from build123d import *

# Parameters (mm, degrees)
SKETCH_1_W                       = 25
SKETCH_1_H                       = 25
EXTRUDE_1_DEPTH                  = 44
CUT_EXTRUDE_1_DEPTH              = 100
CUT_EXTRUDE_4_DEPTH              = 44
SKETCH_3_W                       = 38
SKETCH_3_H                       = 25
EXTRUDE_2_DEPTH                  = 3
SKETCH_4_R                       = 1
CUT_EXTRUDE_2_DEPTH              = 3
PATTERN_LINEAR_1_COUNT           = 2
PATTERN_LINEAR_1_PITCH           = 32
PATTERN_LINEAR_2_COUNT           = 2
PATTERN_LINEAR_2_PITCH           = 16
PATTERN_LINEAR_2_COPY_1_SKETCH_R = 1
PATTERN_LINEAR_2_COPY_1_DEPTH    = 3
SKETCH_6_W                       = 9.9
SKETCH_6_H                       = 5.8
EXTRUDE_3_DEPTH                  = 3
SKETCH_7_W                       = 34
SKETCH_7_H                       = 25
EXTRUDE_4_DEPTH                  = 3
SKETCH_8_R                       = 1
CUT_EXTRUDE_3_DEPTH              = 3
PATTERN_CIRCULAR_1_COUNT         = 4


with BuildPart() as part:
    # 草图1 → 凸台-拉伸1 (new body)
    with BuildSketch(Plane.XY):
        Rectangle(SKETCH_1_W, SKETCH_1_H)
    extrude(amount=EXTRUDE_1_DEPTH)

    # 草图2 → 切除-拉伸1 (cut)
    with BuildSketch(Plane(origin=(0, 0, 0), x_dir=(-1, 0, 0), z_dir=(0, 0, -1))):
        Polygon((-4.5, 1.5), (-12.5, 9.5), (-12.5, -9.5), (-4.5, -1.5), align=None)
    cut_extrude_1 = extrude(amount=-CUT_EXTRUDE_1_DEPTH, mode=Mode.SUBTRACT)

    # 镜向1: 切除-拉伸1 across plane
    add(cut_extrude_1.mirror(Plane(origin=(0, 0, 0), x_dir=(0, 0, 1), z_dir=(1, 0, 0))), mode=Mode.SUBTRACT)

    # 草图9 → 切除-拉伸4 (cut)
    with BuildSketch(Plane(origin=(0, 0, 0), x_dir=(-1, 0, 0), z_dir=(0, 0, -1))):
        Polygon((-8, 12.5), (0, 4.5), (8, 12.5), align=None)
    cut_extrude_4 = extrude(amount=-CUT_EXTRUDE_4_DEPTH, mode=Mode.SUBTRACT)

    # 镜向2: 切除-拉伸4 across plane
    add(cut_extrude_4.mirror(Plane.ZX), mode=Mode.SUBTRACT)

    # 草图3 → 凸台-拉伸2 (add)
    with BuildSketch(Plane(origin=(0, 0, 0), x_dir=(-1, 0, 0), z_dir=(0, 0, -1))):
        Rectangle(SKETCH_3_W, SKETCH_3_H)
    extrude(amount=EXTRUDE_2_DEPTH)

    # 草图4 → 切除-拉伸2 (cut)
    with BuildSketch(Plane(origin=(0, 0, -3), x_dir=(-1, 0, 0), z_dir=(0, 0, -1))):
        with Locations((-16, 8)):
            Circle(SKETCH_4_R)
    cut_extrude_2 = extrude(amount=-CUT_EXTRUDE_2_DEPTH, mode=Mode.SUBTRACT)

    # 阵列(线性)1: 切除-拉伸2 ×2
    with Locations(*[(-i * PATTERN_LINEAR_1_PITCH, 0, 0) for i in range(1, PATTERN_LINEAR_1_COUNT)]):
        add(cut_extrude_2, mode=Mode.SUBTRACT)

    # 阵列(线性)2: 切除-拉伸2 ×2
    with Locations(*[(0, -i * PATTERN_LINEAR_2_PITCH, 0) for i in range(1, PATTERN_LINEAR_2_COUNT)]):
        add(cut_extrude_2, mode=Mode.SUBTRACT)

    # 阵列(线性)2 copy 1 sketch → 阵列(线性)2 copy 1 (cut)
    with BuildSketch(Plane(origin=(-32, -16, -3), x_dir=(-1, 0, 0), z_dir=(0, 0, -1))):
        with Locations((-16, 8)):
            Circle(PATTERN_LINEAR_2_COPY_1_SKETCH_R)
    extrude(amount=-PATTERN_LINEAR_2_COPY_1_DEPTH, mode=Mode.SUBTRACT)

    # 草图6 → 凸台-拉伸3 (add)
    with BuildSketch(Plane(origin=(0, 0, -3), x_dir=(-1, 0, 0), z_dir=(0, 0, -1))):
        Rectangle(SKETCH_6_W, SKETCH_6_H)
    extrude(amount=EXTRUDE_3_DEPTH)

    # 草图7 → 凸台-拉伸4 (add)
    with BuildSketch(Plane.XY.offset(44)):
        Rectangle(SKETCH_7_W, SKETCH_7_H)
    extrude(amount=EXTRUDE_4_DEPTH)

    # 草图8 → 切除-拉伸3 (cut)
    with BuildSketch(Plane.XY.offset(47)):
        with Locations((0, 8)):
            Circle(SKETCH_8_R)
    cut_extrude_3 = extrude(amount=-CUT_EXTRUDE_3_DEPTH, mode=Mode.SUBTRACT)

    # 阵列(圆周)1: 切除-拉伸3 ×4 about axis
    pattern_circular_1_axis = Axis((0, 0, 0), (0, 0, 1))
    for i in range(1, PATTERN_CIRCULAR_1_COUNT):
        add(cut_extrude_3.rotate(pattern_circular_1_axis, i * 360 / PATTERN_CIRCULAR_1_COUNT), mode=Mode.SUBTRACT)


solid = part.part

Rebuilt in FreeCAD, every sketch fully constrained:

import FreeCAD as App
import Part
import Sketcher
Q = App.Units.Quantity


def add_polygon(sketch, points):
    """Adds a closed chain of lines whose ends are joined by coincident constraints."""
    first, n = sketch.GeometryCount, len(points)
    for a, b in zip(points, points[1:] + points[:1]):
        sketch.addGeometry(Part.LineSegment(App.Vector(*a, 0), App.Vector(*b, 0)), False)
    for i in range(n):
        sketch.addConstraint(Sketcher.Constraint("Coincident", first + i, 2, first + (i + 1) % n, 1))

doc = App.newDocument("Part")
body = doc.addObject("PartDesign::Body", "Body")

sketch1 = doc.addObject("Sketcher::SketchObject", "Sketch")
body.addObject(sketch1)
sketch1.AttachmentSupport = (doc.XY_Plane, [""])
sketch1.MapMode = "FlatFace"
add_polygon(sketch1, [(-12, 12), (-12, -12), (12, -12), (12, 12)])
sketch1.addConstraint([
    Sketcher.Constraint("Vertical", 0),
    Sketcher.Constraint("Horizontal", 1),
    Sketcher.Constraint("Vertical", 2),
    Sketcher.Constraint("Horizontal", 3),
    Sketcher.Constraint("Symmetric", 0, 2, 2, 2, -1, 1),
    Sketcher.Constraint("Equal", 3, 0),
    Sketcher.Constraint("DistanceX", 1, 1, 1, 2, Q("25 mm")),
])
pad1 = doc.addObject("PartDesign::Pad", "Pad")
body.addObject(pad1)
pad1.Profile = sketch1
pad1.Length = 44

sketch2 = doc.addObject("Sketcher::SketchObject", "Sketch001")
body.addObject(sketch2)
sketch2.AttachmentSupport = (doc.XY_Plane, [""])
sketch2.MapMode = "FlatFace"
add_polygon(sketch2, [(4.5, 1.5), (12.5, 9.5), (12.5, -9.5), (4.5, -1.5)])
sketch2.addConstraint([
    Sketcher.Constraint("Vertical", 1),
    Sketcher.Constraint("Vertical", 3),
    Sketcher.Constraint("Perpendicular", 0, 2),
    Sketcher.Constraint("Equal", 0, 2),
    Sketcher.Constraint("DistanceY", 1, 2, 1, 1, Q("19 mm")),
    Sketcher.Constraint("DistanceY", 3, 1, 3, 2, Q("3 mm")),
    Sketcher.Constraint("DistanceX", -1, 1, 0, 2, Q("12.5 mm")),
    Sketcher.Constraint("DistanceY", -1, 1, 0, 2, Q("9.5 mm")),
])
pocket1 = doc.addObject("PartDesign::Pocket", "Pocket")
body.addObject(pocket1)
pocket1.Profile = sketch2
pocket1.Length = 100
pocket1.Reversed = True
doc.recompute()

mirrored = doc.addObject("PartDesign::Mirrored", "Mirrored")
body.addObject(mirrored)
mirrored.Originals = [pocket1]
mirrored.MirrorPlane = (doc.YZ_Plane, [""])
body.Tip = mirrored

sketch3 = doc.addObject("Sketcher::SketchObject", "Sketch002")
body.addObject(sketch3)
sketch3.AttachmentSupport = (doc.XY_Plane, [""])
sketch3.MapMode = "FlatFace"
add_polygon(sketch3, [(8, 12), (0, 4), (-8, 12)])
sketch3.addConstraint([
    Sketcher.Constraint("Horizontal", 2),
    Sketcher.Constraint("PointOnObject", 0, 2, -2),
    Sketcher.Constraint("Perpendicular", 0, 1),
    Sketcher.Constraint("Equal", 0, 1),
    Sketcher.Constraint("DistanceX", 2, 1, 2, 2, Q("16 mm")),
    Sketcher.Constraint("DistanceY", -1, 1, 0, 2, Q("4.5 mm")),
])
pocket2 = doc.addObject("PartDesign::Pocket", "Pocket001")
body.addObject(pocket2)
pocket2.Profile = sketch3
pocket2.Length = 44
pocket2.Reversed = True
doc.recompute()

mirrored2 = doc.addObject("PartDesign::Mirrored", "Mirrored001")
body.addObject(mirrored2)
mirrored2.Originals = [pocket2]
mirrored2.MirrorPlane = (doc.XZ_Plane, [""])
body.Tip = mirrored2

sketch4 = doc.addObject("Sketcher::SketchObject", "Sketch003")
body.addObject(sketch4)
sketch4.AttachmentSupport = (doc.XY_Plane, [""])
sketch4.MapMode = "FlatFace"
add_polygon(sketch4, [(19, 12), (19, -12), (-19, -12), (-19, 12)])
sketch4.addConstraint([
    Sketcher.Constraint("Vertical", 0),
    Sketcher.Constraint("Horizontal", 1),
    Sketcher.Constraint("Vertical", 2),
    Sketcher.Constraint("Horizontal", 3),
    Sketcher.Constraint("Symmetric", 0, 2, 2, 2, -1, 1),
    Sketcher.Constraint("DistanceX", 1, 2, 1, 1, Q("38 mm")),
    Sketcher.Constraint("DistanceY", 0, 2, 0, 1, Q("25 mm")),
])
pad2 = doc.addObject("PartDesign::Pad", "Pad001")
body.addObject(pad2)
pad2.Profile = sketch4
pad2.Length = 3
pad2.Reversed = True

sketch5 = doc.addObject("Sketcher::SketchObject", "Sketch004")
body.addObject(sketch5)
sketch5.AttachmentSupport = (doc.XY_Plane, [""])
sketch5.MapMode = "FlatFace"
sketch5.AttachmentOffset = App.Placement(App.Vector(0, 0, -3), App.Rotation())
sketch5.addGeometry(Part.Circle(App.Vector(16, 8, 0), App.Vector(0, 0, 1), 1), False)
sketch5.addConstraint([
    Sketcher.Constraint("Diameter", 0, Q("2 mm")),
    Sketcher.Constraint("DistanceX", -1, 1, 0, 3, Q("16 mm")),
    Sketcher.Constraint("DistanceY", -1, 1, 0, 3, Q("8 mm")),
])
pocket3 = doc.addObject("PartDesign::Pocket", "Pocket002")
body.addObject(pocket3)
pocket3.Profile = sketch5
pocket3.Length = 3
pocket3.Reversed = True
doc.recompute()

linearpattern = doc.addObject("PartDesign::LinearPattern", "LinearPattern")
body.addObject(linearpattern)
linearpattern.Originals = [pocket3]
linearpattern.Direction = (doc.X_Axis, [""])
linearpattern.Mode = "offset"
linearpattern.Offset = 32
linearpattern.Occurrences = 2
linearpattern.Reversed = True
body.Tip = linearpattern
doc.recompute()

linearpattern2 = doc.addObject("PartDesign::LinearPattern", "LinearPattern001")
body.addObject(linearpattern2)
linearpattern2.Originals = [pocket3]
linearpattern2.Direction = (doc.Y_Axis, [""])
linearpattern2.Mode = "offset"
linearpattern2.Offset = 16
linearpattern2.Occurrences = 2
linearpattern2.Reversed = True
body.Tip = linearpattern2

sketch6 = doc.addObject("Sketcher::SketchObject", "Sketch005")
body.addObject(sketch6)
sketch6.AttachmentSupport = (doc.XY_Plane, [""])
sketch6.MapMode = "FlatFace"
sketch6.AttachmentOffset = App.Placement(App.Vector(0, 0, -3), App.Rotation())
sketch6.addGeometry(Part.Circle(App.Vector(-16, -8, 0), App.Vector(0, 0, 1), 1), False)
sketch6.addConstraint([
    Sketcher.Constraint("Diameter", 0, Q("2 mm")),
    Sketcher.Constraint("DistanceX", 0, 3, -1, 1, Q("16 mm")),
    Sketcher.Constraint("DistanceY", 0, 3, -1, 1, Q("8 mm")),
])
pocket4 = doc.addObject("PartDesign::Pocket", "Pocket003")
body.addObject(pocket4)
pocket4.Profile = sketch6
pocket4.Length = 3
pocket4.Reversed = True

sketch7 = doc.addObject("Sketcher::SketchObject", "Sketch006")
body.addObject(sketch7)
sketch7.AttachmentSupport = (doc.XY_Plane, [""])
sketch7.MapMode = "FlatFace"
sketch7.AttachmentOffset = App.Placement(App.Vector(0, 0, -3), App.Rotation())
add_polygon(sketch7, [(5, 3), (5, -3), (-5, -3), (-5, 3)])
sketch7.addConstraint([
    Sketcher.Constraint("Vertical", 0),
    Sketcher.Constraint("Horizontal", 1),
    Sketcher.Constraint("Vertical", 2),
    Sketcher.Constraint("Horizontal", 3),
    Sketcher.Constraint("Symmetric", 0, 2, 2, 2, -1, 1),
    Sketcher.Constraint("DistanceX", 1, 2, 1, 1, Q("9.9 mm")),
    Sketcher.Constraint("DistanceY", 0, 2, 0, 1, Q("5.8 mm")),
])
pad3 = doc.addObject("PartDesign::Pad", "Pad002")
body.addObject(pad3)
pad3.Profile = sketch7
pad3.Length = 3
pad3.Reversed = True

sketch8 = doc.addObject("Sketcher::SketchObject", "Sketch007")
body.addObject(sketch8)
sketch8.AttachmentSupport = (doc.XY_Plane, [""])
sketch8.MapMode = "FlatFace"
sketch8.AttachmentOffset = App.Placement(App.Vector(0, 0, 44), App.Rotation())
add_polygon(sketch8, [(-17, 12), (-17, -12), (17, -12), (17, 12)])
sketch8.addConstraint([
    Sketcher.Constraint("Vertical", 0),
    Sketcher.Constraint("Horizontal", 1),
    Sketcher.Constraint("Vertical", 2),
    Sketcher.Constraint("Horizontal", 3),
    Sketcher.Constraint("Symmetric", 0, 2, 2, 2, -1, 1),
    Sketcher.Constraint("DistanceX", 1, 1, 1, 2, Q("34 mm")),
    Sketcher.Constraint("DistanceY", 0, 2, 0, 1, Q("25 mm")),
])
pad4 = doc.addObject("PartDesign::Pad", "Pad003")
body.addObject(pad4)
pad4.Profile = sketch8
pad4.Length = 3

sketch9 = doc.addObject("Sketcher::SketchObject", "Sketch008")
body.addObject(sketch9)
sketch9.AttachmentSupport = (doc.XY_Plane, [""])
sketch9.MapMode = "FlatFace"
sketch9.AttachmentOffset = App.Placement(App.Vector(0, 0, 47), App.Rotation())
sketch9.addGeometry(Part.Circle(App.Vector(0, 8, 0), App.Vector(0, 0, 1), 1), False)
sketch9.addConstraint([
    Sketcher.Constraint("PointOnObject", 0, 3, -2),
    Sketcher.Constraint("Diameter", 0, Q("2 mm")),
    Sketcher.Constraint("DistanceY", -1, 1, 0, 3, Q("8 mm")),
])
pocket5 = doc.addObject("PartDesign::Pocket", "Pocket004")
body.addObject(pocket5)
pocket5.Profile = sketch9
pocket5.Length = 3
doc.recompute()

polarpattern = doc.addObject("PartDesign::PolarPattern", "PolarPattern")
body.addObject(polarpattern)
polarpattern.Originals = [pocket5]
polarpattern.Axis = (doc.Z_Axis, [""])
polarpattern.Angle = 360
polarpattern.Occurrences = 4
body.Tip = polarpattern

doc.recompute()
